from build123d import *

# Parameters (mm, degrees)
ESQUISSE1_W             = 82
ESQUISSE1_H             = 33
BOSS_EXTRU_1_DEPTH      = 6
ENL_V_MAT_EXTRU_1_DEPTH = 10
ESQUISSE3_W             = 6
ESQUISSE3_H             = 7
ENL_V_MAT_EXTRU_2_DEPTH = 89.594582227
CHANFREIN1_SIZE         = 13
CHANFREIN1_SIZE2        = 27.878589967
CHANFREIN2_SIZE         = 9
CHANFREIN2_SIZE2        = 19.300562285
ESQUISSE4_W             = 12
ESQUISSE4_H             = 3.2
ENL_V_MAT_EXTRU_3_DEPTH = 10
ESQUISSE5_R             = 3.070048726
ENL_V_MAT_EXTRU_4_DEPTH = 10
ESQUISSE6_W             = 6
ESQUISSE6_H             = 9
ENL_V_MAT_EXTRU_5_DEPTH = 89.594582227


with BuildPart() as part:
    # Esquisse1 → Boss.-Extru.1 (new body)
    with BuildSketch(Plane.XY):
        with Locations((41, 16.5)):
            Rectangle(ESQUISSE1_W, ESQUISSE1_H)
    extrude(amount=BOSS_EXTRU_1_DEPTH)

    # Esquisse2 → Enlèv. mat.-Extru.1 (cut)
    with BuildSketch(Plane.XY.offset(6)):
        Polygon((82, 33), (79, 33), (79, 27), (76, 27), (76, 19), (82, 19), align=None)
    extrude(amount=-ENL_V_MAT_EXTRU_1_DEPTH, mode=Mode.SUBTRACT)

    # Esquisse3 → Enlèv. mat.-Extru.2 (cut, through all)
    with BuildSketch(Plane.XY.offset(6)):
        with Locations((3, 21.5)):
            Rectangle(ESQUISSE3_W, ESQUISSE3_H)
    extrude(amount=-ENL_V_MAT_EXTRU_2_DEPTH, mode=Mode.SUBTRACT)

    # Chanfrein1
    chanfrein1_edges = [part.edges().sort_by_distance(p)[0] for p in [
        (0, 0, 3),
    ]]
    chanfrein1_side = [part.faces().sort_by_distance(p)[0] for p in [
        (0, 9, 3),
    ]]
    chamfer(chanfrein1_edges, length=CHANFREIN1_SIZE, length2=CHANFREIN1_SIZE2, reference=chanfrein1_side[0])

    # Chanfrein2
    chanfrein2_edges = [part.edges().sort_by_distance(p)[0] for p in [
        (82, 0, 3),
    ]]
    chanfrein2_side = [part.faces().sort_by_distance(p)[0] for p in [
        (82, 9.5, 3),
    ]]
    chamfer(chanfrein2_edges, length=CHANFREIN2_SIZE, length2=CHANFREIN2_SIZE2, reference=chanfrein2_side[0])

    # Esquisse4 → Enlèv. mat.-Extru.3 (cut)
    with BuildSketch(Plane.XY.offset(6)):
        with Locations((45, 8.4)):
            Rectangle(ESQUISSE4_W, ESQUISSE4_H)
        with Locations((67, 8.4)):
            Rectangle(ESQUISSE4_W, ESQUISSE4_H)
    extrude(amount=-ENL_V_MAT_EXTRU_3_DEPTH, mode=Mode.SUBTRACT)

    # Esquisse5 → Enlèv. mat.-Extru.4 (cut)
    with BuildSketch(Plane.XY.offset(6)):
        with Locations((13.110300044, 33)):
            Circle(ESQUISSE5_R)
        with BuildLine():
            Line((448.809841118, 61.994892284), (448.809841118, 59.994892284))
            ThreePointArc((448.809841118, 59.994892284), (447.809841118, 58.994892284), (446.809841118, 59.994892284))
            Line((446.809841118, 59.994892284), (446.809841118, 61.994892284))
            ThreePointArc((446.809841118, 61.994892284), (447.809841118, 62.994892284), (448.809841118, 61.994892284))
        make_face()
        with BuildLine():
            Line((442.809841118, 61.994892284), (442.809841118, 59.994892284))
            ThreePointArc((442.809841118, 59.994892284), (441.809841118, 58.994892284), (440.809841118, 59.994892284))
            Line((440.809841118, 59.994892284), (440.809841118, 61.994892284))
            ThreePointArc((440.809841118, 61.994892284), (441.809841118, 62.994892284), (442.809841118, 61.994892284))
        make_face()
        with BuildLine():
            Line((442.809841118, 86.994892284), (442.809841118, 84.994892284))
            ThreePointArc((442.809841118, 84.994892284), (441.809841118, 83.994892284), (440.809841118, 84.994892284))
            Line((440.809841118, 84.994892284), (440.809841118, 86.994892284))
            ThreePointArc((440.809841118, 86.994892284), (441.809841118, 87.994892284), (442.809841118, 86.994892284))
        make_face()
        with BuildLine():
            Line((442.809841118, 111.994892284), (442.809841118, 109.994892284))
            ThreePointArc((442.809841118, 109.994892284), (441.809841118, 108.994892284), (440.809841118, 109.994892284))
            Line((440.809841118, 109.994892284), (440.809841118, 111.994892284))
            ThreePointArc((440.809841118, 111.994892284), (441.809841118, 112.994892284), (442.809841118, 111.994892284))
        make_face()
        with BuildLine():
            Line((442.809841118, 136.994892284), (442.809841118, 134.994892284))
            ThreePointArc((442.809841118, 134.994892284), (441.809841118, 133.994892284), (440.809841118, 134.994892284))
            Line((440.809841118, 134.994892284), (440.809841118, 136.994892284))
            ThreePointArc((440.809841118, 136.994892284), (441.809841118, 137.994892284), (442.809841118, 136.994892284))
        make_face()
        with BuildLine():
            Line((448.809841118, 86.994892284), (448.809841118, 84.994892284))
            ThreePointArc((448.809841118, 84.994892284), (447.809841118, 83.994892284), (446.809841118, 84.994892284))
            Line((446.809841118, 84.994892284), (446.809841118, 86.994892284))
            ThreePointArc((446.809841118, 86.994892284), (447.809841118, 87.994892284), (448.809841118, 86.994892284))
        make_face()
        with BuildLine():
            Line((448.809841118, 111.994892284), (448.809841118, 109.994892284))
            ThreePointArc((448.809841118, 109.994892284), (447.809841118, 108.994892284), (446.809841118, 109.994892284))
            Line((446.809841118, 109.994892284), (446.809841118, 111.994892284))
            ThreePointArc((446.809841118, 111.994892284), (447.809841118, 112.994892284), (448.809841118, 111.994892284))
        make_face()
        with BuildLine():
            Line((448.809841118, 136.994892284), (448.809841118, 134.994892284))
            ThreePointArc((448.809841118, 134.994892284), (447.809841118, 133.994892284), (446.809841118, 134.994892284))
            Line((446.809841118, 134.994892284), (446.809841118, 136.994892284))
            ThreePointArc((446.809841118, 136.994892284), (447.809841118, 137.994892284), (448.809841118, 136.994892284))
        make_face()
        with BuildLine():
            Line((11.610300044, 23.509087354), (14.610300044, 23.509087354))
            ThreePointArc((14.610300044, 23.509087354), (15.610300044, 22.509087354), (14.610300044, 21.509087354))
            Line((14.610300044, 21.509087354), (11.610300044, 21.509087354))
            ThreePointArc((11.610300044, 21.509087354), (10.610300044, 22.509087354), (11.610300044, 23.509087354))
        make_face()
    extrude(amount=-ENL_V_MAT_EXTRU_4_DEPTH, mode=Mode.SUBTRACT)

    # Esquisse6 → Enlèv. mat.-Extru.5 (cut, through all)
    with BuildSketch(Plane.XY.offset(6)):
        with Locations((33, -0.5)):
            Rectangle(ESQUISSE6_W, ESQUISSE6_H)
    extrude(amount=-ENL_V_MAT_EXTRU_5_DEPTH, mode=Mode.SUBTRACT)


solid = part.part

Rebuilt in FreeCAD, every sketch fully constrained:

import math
import FreeCAD as App
import Part
import Sketcher
Q = App.Units.Quantity


def edges_at(feature, points):
    """Names of the edges that pass closest to the given points."""
    edges = feature.Shape.Edges
    near = lambda p: min(range(len(edges)), key=lambda i: edges[i].distToShape(Part.Vertex(*p))[0])
    return sorted({f"Edge{near(p) + 1}" for p in points})


def add_polygon(sketch, points):
    """Adds a closed chain of lines whose ends are joined by coincident constraints."""
    first, n = sketch.GeometryCount, len(points)
    for a, b in zip(points, points[1:] + points[:1]):
        sketch.addGeometry(Part.LineSegment(App.Vector(*a, 0), App.Vector(*b, 0)), False)
    for i in range(n):
        sketch.addConstraint(Sketcher.Constraint("Coincident", first + i, 2, first + (i + 1) % n, 1))

doc = App.newDocument("Part")
params = doc.addObject("Spreadsheet::Sheet", "Params")
for row, (alias, value) in enumerate([
    ("sketch1_width", "82 mm"),
    ("sketch1_height", "33 mm"),
    ("pad1_length", "6 mm"),
    ("sketch2_width", "3 mm"),
    ("sketch2_height", "8 mm"),
    ("pocket1_length", "10 mm"),
    ("sketch3_width", "6 mm"),
    ("sketch3_height", "7 mm"),
    ("chamfer_size", "13 mm"),
    ("chamfer_size2", "27.87859 mm"),
    ("chamfer2_size", "9 mm"),
    ("chamfer2_size2", "19.300562 mm"),
    ("sketch4_width", "12 mm"),
    ("sketch4_height", "3.2 mm"),
    ("pocket3_length", "10 mm"),
    ("sketch5_radius", "1 mm"),
    ("sketch5_width", "3 mm"),
    ("sketch5_height", "2 mm"),
    ("pocket4_length", "10 mm"),
    ("sketch6_width", "6 mm"),
    ("sketch6_height", "9 mm"),
], start=1):
    params.set(f"A{row}", alias)
    params.set(f"B{row}", "=" + value)
    params.setAlias(f"B{row}", alias)

body = doc.addObject("PartDesign::Body", "Body")

# Sketch on XY plane
sketch1 = doc.addObject("Sketcher::SketchObject", "Sketch")
body.addObject(sketch1)
sketch1.AttachmentSupport = (doc.XY_Plane, [""])
sketch1.MapMode = "FlatFace"
add_polygon(sketch1, [(0, 33), (0, 0), (82, 0), (82, 33)])  # lines 0-3
sketch1.addConstraint(Sketcher.Constraint("Vertical", 0))
sketch1.addConstraint(Sketcher.Constraint("Horizontal", 1))
sketch1.addConstraint(Sketcher.Constraint("Vertical", 2))
sketch1.addConstraint(Sketcher.Constraint("Horizontal", 3))
sketch1.addConstraint(Sketcher.Constraint("Coincident", 0, 2, -1, 1))
sketch1.addConstraint(Sketcher.Constraint("DistanceX", 1, 1, 1, 2, Q("82 mm")))
sketch1.addConstraint(Sketcher.Constraint("DistanceY", 0, 2, 0, 1, Q("33 mm")))
sketch1.setExpression("Constraints[9]", "Params.sketch1_width")
sketch1.setExpression("Constraints[10]", "Params.sketch1_height")
pad1 = doc.addObject("PartDesign::Pad", "Pad")
body.addObject(pad1)
pad1.Profile = sketch1
pad1.setExpression("Length", "Params.pad1_length")

# Sketch on XY plane
sketch2 = doc.addObject("Sketcher::SketchObject", "Sketch001")
body.addObject(sketch2)
sketch2.AttachmentSupport = (doc.XY_Plane, [""])
sketch2.MapMode = "FlatFace"
sketch2.AttachmentOffset = App.Placement(App.Vector(0, 0, 6), App.Rotation())
add_polygon(sketch2, [(82, 33), (79, 33), (79, 27), (76, 27), (76, 19), (82, 19)])  # lines 0-5
sketch2.addConstraint(Sketcher.Constraint("Horizontal", 0))
sketch2.addConstraint(Sketcher.Constraint("Vertical", 1))
sketch2.addConstraint(Sketcher.Constraint("Horizontal", 2))
sketch2.addConstraint(Sketcher.Constraint("Vertical", 3))
sketch2.addConstraint(Sketcher.Constraint("Horizontal", 4))
sketch2.addConstraint(Sketcher.Constraint("Vertical", 5))
sketch2.addConstraint(Sketcher.Constraint("Equal", 0, 2))
sketch2.addConstraint(Sketcher.Constraint("Equal", 4, 1))
sketch2.addConstraint(Sketcher.Constraint("DistanceX", 0, 2, 0, 1, Q("3 mm")))
sketch2.addConstraint(Sketcher.Constraint("DistanceY", 3, 2, 3, 1, Q("8 mm")))
sketch2.addConstraint(Sketcher.Constraint("DistanceX", -1, 1, 0, 2, Q("79 mm")))
sketch2.addConstraint(Sketcher.Constraint("DistanceY", -1, 1, 0, 2, Q("33 mm")))
sketch2.setExpression("Constraints[14]", "Params.sketch2_width")
sketch2.setExpression("Constraints[15]", "Params.sketch2_height")
pocket1 = doc.addObject("PartDesign::Pocket", "Pocket")
body.addObject(pocket1)
pocket1.Profile = sketch2
pocket1.setExpression("Length", "Params.pocket1_length")

# Sketch on XY plane
sketch3 = doc.addObject("Sketcher::SketchObject", "Sketch002")
body.addObject(sketch3)
sketch3.AttachmentSupport = (doc.XY_Plane, [""])
sketch3.MapMode = "FlatFace"
sketch3.AttachmentOffset = App.Placement(App.Vector(0, 0, 6), App.Rotation())
add_polygon(sketch3, [(0, 25), (0, 18), (6, 18), (6, 25)])  # lines 0-3
sketch3.addConstraint(Sketcher.Constraint("Vertical", 0))
sketch3.addConstraint(Sketcher.Constraint("Horizontal", 1))
sketch3.addConstraint(Sketcher.Constraint("Vertical", 2))
sketch3.addConstraint(Sketcher.Constraint("Horizontal", 3))
sketch3.addConstraint(Sketcher.Constraint("PointOnObject", 0, 2, -2))
sketch3.addConstraint(Sketcher.Constraint("DistanceX", 1, 1, 1, 2, Q("6 mm")))
sketch3.addConstraint(Sketcher.Constraint("DistanceY", 0, 2, 0, 1, Q("7 mm")))
sketch3.addConstraint(Sketcher.Constraint("DistanceY", -1, 1, 0, 2, Q("18 mm")))
sketch3.setExpression("Constraints[9]", "Params.sketch3_width")
sketch3.setExpression("Constraints[10]", "Params.sketch3_height")
pocket2 = doc.addObject("PartDesign::Pocket", "Pocket001")
body.addObject(pocket2)
pocket2.Profile = sketch3
pocket2.Type = "ThroughAll"
doc.recompute()

chamfer = doc.addObject("PartDesign::Chamfer", "Chamfer")
body.addObject(chamfer)
chamfer.Base = (pocket2, edges_at(pocket2, [(0, 0, 3)]))
chamfer.ChamferType = "Two distances"
chamfer.setExpression("Size", "Params.chamfer_size")
chamfer.setExpression("Size2", "Params.chamfer_size2")
chamfer.FlipDirection = True
doc.recompute()

chamfer2 = doc.addObject("PartDesign::Chamfer", "Chamfer001")
body.addObject(chamfer2)
chamfer2.Base = (chamfer, edges_at(chamfer, [(82, 0, 3)]))
chamfer2.ChamferType = "Two distances"
chamfer2.setExpression("Size", "Params.chamfer2_size")
chamfer2.setExpression("Size2", "Params.chamfer2_size2")
chamfer2.FlipDirection = True

# Sketch on XY plane
sketch4 = doc.addObject("Sketcher::SketchObject", "Sketch003")
body.addObject(sketch4)
sketch4.AttachmentSupport = (doc.XY_Plane, [""])
sketch4.MapMode = "FlatFace"
sketch4.AttachmentOffset = App.Placement(App.Vector(0, 0, 6), App.Rotation())
add_polygon(sketch4, [(39, 10), (39, 6.8), (51, 6.8), (51, 10)])  # lines 0-3
add_polygon(sketch4, [(61, 10), (61, 6.8), (73, 6.8), (73, 10)])  # lines 4-7
sketch4.addConstraint(Sketcher.Constraint("Vertical", 0))
sketch4.addConstraint(Sketcher.Constraint("Horizontal", 1))
sketch4.addConstraint(Sketcher.Constraint("Vertical", 2))
sketch4.addConstraint(Sketcher.Constraint("Horizontal", 3))
sketch4.addConstraint(Sketcher.Constraint("Vertical", 4))
sketch4.addConstraint(Sketcher.Constraint("Horizontal", 5))
sketch4.addConstraint(Sketcher.Constraint("Vertical", 6))
sketch4.addConstraint(Sketcher.Constraint("Horizontal", 7))
sketch4.addConstraint(Sketcher.Constraint("Horizontal", 1, 2, 4, 2))
sketch4.addConstraint(Sketcher.Constraint("Horizontal", 3, 2, 6, 2))
sketch4.addConstraint(Sketcher.Constraint("Equal", 3, 5))
sketch4.addConstraint(Sketcher.Constraint("DistanceX", 1, 1, 1, 2, Q("12 mm")))
sketch4.addConstraint(Sketcher.Constraint("DistanceY", 0, 2, 0, 1, Q("3.2 mm")))
sketch4.addConstraint(Sketcher.Constraint("DistanceX", -1, 1, 0, 2, Q("39 mm")))
sketch4.addConstraint(Sketcher.Constraint("DistanceY", -1, 1, 2, 2, Q("10 mm")))
sketch4.addConstraint(Sketcher.Constraint("DistanceX", -1, 1, 4, 2, Q("61 mm")))
sketch4.setExpression("Constraints[19]", "Params.sketch4_width")
sketch4.setExpression("Constraints[20]", "Params.sketch4_height")
pocket3 = doc.addObject("PartDesign::Pocket", "Pocket002")
body.addObject(pocket3)
pocket3.Profile = sketch4
pocket3.setExpression("Length", "Params.pocket3_length")

# Sketch on XY plane
sketch5 = doc.addObject("Sketcher::SketchObject", "Sketch004")
body.addObject(sketch5)
sketch5.AttachmentSupport = (doc.XY_Plane, [""])
sketch5.MapMode = "FlatFace"
sketch5.AttachmentOffset = App.Placement(App.Vector(0, 0, 6), App.Rotation())
sketch5.addGeometry(Part.Circle(App.Vector(13.1103, 33, 0), App.Vector(0, 0, 1), 3.070049), False)
sketch5.addGeometry(Part.LineSegment(App.Vector(448.809841, 59.994892, 0), App.Vector(448.809841, 61.994892, 0)), False)
sketch5.addGeometry(Part.ArcOfCircle(Part.Circle(App.Vector(447.809841, 61.994892, 0), App.Vector(0, 0, 1), 1), math.radians(0), math.radians(180)), False)
sketch5.addGeometry(Part.LineSegment(App.Vector(446.809841, 61.994892, 0), App.Vector(446.809841, 59.994892, 0)), False)
sketch5.addGeometry(Part.ArcOfCircle(Part.Circle(App.Vector(447.809841, 59.994892, 0), App.Vector(0, 0, 1), 1), math.radians(180), math.radians(360)), False)
sketch5.addGeometry(Part.LineSegment(App.Vector(442.809841, 59.994892, 0), App.Vector(442.809841, 61.994892, 0)), False)
sketch5.addGeometry(Part.ArcOfCircle(Part.Circle(App.Vector(441.809841, 61.994892, 0), App.Vector(0, 0, 1), 1), math.radians(0), math.radians(180)), False)
sketch5.addGeometry(Part.LineSegment(App.Vector(440.809841, 61.994892, 0), App.Vector(440.809841, 59.994892, 0)), False)
sketch5.addGeometry(Part.ArcOfCircle(Part.Circle(App.Vector(441.809841, 59.994892, 0), App.Vector(0, 0, 1), 1), math.radians(180), math.radians(360)), False)
sketch5.addGeometry(Part.LineSegment(App.Vector(442.809841, 84.994892, 0), App.Vector(442.809841, 86.994892, 0)), False)
sketch5.addGeometry(Part.ArcOfCircle(Part.Circle(App.Vector(441.809841, 86.994892, 0), App.Vector(0, 0, 1), 1), math.radians(0), math.radians(180)), False)
sketch5.addGeometry(Part.LineSegment(App.Vector(440.809841, 86.994892, 0), App.Vector(440.809841, 84.994892, 0)), False)
sketch5.addGeometry(Part.ArcOfCircle(Part.Circle(App.Vector(441.809841, 84.994892, 0), App.Vector(0, 0, 1), 1), math.radians(180), math.radians(360)), False)
sketch5.addGeometry(Part.LineSegment(App.Vector(442.809841, 109.994892, 0), App.Vector(442.809841, 111.994892, 0)), False)
sketch5.addGeometry(Part.ArcOfCircle(Part.Circle(App.Vector(441.809841, 111.994892, 0), App.Vector(0, 0, 1), 1), math.radians(0), math.radians(180)), False)
sketch5.addGeometry(Part.LineSegment(App.Vector(440.809841, 111.994892, 0), App.Vector(440.809841, 109.994892, 0)), False)
sketch5.addGeometry(Part.ArcOfCircle(Part.Circle(App.Vector(441.809841, 109.994892, 0), App.Vector(0, 0, 1), 1), math.radians(180), math.radians(360)), False)
sketch5.addGeometry(Part.LineSegment(App.Vector(442.809841, 134.994892, 0), App.Vector(442.809841, 136.994892, 0)), False)
sketch5.addGeometry(Part.ArcOfCircle(Part.Circle(App.Vector(441.809841, 136.994892, 0), App.Vector(0, 0, 1), 1), math.radians(0), math.radians(180)), False)
sketch5.addGeometry(Part.LineSegment(App.Vector(440.809841, 136.994892, 0), App.Vector(440.809841, 134.994892, 0)), False)
sketch5.addGeometry(Part.ArcOfCircle(Part.Circle(App.Vector(441.809841, 134.994892, 0), App.Vector(0, 0, 1), 1), math.radians(180), math.radians(360)), False)
sketch5.addGeometry(Part.LineSegment(App.Vector(448.809841, 84.994892, 0), App.Vector(448.809841, 86.994892, 0)), False)
sketch5.addGeometry(Part.ArcOfCircle(Part.Circle(App.Vector(447.809841, 86.994892, 0), App.Vector(0, 0, 1), 1), math.radians(0), math.radians(180)), False)
sketch5.addGeometry(Part.LineSegment(App.Vector(446.809841, 86.994892, 0), App.Vector(446.809841, 84.994892, 0)), False)
sketch5.addGeometry(Part.ArcOfCircle(Part.Circle(App.Vector(447.809841, 84.994892, 0), App.Vector(0, 0, 1), 1), math.radians(180), math.radians(360)), False)
sketch5.addGeometry(Part.LineSegment(App.Vector(448.809841, 109.994892, 0), App.Vector(448.809841, 111.994892, 0)), False)
sketch5.addGeometry(Part.ArcOfCircle(Part.Circle(App.Vector(447.809841, 111.994892, 0), App.Vector(0, 0, 1), 1), math.radians(0), math.radians(180)), False)
sketch5.addGeometry(Part.LineSegment(App.Vector(446.809841, 111.994892, 0), App.Vector(446.809841, 109.994892, 0)), False)
sketch5.addGeometry(Part.ArcOfCircle(Part.Circle(App.Vector(447.809841, 109.994892, 0), App.Vector(0, 0, 1), 1), math.radians(180), math.radians(360)), False)
sketch5.addGeometry(Part.LineSegment(App.Vector(448.809841, 134.994892, 0), App.Vector(448.809841, 136.994892, 0)), False)
sketch5.addGeometry(Part.ArcOfCircle(Part.Circle(App.Vector(447.809841, 136.994892, 0), App.Vector(0, 0, 1), 1), math.radians(0), math.radians(180)), False)
sketch5.addGeometry(Part.LineSegment(App.Vector(446.809841, 136.994892, 0), App.Vector(446.809841, 134.994892, 0)), False)
sketch5.addGeometry(Part.ArcOfCircle(Part.Circle(App.Vector(447.809841, 134.994892, 0), App.Vector(0, 0, 1), 1), math.radians(180), math.radians(360)), False)
sketch5.addGeometry(Part.LineSegment(App.Vector(14.6103, 23.509087, 0), App.Vector(11.6103, 23.509087, 0)), False)
sketch5.addGeometry(Part.ArcOfCircle(Part.Circle(App.Vector(11.6103, 22.509087, 0), App.Vector(0, 0, 1), 1), math.radians(90), math.radians(270)), False)
sketch5.addGeometry(Part.LineSegment(App.Vector(11.6103, 21.509087, 0), App.Vector(14.6103, 21.509087, 0)), False)
sketch5.addGeometry(Part.ArcOfCircle(Part.Circle(App.Vector(14.6103, 22.509087, 0), App.Vector(0, 0, 1), 1), math.radians(-90), math.radians(90)), False)
sketch5.addConstraint(Sketcher.Constraint("Tangent", 1, 2, 2, 1))
sketch5.addConstraint(Sketcher.Constraint("Tangent", 2, 2, 3, 1))
sketch5.addConstraint(Sketcher.Constraint("Tangent", 3, 2, 4, 1))
sketch5.addConstraint(Sketcher.Constraint("Tangent", 4, 2, 1, 1))
sketch5.addConstraint(Sketcher.Constraint("Tangent", 5, 2, 6, 1))
sketch5.addConstraint(Sketcher.Constraint("Tangent", 6, 2, 7, 1))
sketch5.addConstraint(Sketcher.Constraint("Tangent", 7, 2, 8, 1))
sketch5.addConstraint(Sketcher.Constraint("Tangent", 8, 2, 5, 1))
sketch5.addConstraint(Sketcher.Constraint("Tangent", 9, 2, 10, 1))
sketch5.addConstraint(Sketcher.Constraint("Tangent", 10, 2, 11, 1))
sketch5.addConstraint(Sketcher.Constraint("Tangent", 11, 2, 12, 1))
sketch5.addConstraint(Sketcher.Constraint("Tangent", 12, 2, 9, 1))
sketch5.addConstraint(Sketcher.Constraint("Tangent", 13, 2, 14, 1))
sketch5.addConstraint(Sketcher.Constraint("Tangent", 14, 2, 15, 1))
sketch5.addConstraint(Sketcher.Constraint("Tangent", 15, 2, 16, 1))
sketch5.addConstraint(Sketcher.Constraint("Tangent", 16, 2, 13, 1))
sketch5.addConstraint(Sketcher.Constraint("Tangent", 17, 2, 18, 1))
sketch5.addConstraint(Sketcher.Constraint("Tangent", 18, 2, 19, 1))
sketch5.addConstraint(Sketcher.Constraint("Tangent", 19, 2, 20, 1))
sketch5.addConstraint(Sketcher.Constraint("Tangent", 20, 2, 17, 1))
sketch5.addConstraint(Sketcher.Constraint("Tangent", 21, 2, 22, 1))
sketch5.addConstraint(Sketcher.Constraint("Tangent", 22, 2, 23, 1))
sketch5.addConstraint(Sketcher.Constraint("Tangent", 23, 2, 24, 1))
sketch5.addConstraint(Sketcher.Constraint("Tangent", 24, 2, 21, 1))
sketch5.addConstraint(Sketcher.Constraint("Tangent", 25, 2, 26, 1))
sketch5.addConstraint(Sketcher.Constraint("Tangent", 26, 2, 27, 1))
sketch5.addConstraint(Sketcher.Constraint("Tangent", 27, 2, 28, 1))
sketch5.addConstraint(Sketcher.Constraint("Tangent", 28, 2, 25, 1))
sketch5.addConstraint(Sketcher.Constraint("Tangent", 29, 2, 30, 1))
sketch5.addConstraint(Sketcher.Constraint("Tangent", 30, 2, 31, 1))
sketch5.addConstraint(Sketcher.Constraint("Tangent", 31, 2, 32, 1))
sketch5.addConstraint(Sketcher.Constraint("Tangent", 32, 2, 29, 1))
sketch5.addConstraint(Sketcher.Constraint("Tangent", 33, 2, 34, 1))
sketch5.addConstraint(Sketcher.Constraint("Tangent", 34, 2, 35, 1))
sketch5.addConstraint(Sketcher.Constraint("Tangent", 35, 2, 36, 1))
sketch5.addConstraint(Sketcher.Constraint("Tangent", 36, 2, 33, 1))
sketch5.addConstraint(Sketcher.Constraint("Vertical", 1))
sketch5.addConstraint(Sketcher.Constraint("Vertical", 3))
sketch5.addConstraint(Sketcher.Constraint("Vertical", 5))
sketch5.addConstraint(Sketcher.Constraint("Vertical", 7))
sketch5.addConstraint(Sketcher.Constraint("Vertical", 9))
sketch5.addConstraint(Sketcher.Constraint("Vertical", 11))
sketch5.addConstraint(Sketcher.Constraint("Vertical", 13))
sketch5.addConstraint(Sketcher.Constraint("Vertical", 15))
sketch5.addConstraint(Sketcher.Constraint("Vertical", 17))
sketch5.addConstraint(Sketcher.Constraint("Vertical", 19))
sketch5.addConstraint(Sketcher.Constraint("Vertical", 21))
sketch5.addConstraint(Sketcher.Constraint("Vertical", 23))
sketch5.addConstraint(Sketcher.Constraint("Vertical", 25))
sketch5.addConstraint(Sketcher.Constraint("Vertical", 27))
sketch5.addConstraint(Sketcher.Constraint("Vertical", 29))
sketch5.addConstraint(Sketcher.Constraint("Vertical", 31))
sketch5.addConstraint(Sketcher.Constraint("Horizontal", 33))
sketch5.addConstraint(Sketcher.Constraint("Horizontal", 35))
sketch5.addConstraint(Sketcher.Constraint("Equal", 4, 6))
sketch5.addConstraint(Sketcher.Constraint("Equal", 8, 10))
sketch5.addConstraint(Sketcher.Constraint("Equal", 12, 14))
sketch5.addConstraint(Sketcher.Constraint("Equal", 16, 18))
sketch5.addConstraint(Sketcher.Constraint("Equal", 20, 22))
sketch5.addConstraint(Sketcher.Constraint("Equal", 24, 26))
sketch5.addConstraint(Sketcher.Constraint("Equal", 28, 30))
sketch5.addConstraint(Sketcher.Constraint("Equal", 32, 34))
sketch5.addConstraint(Sketcher.Constraint("Horizontal", 2, 3, 6, 3))
sketch5.addConstraint(Sketcher.Constraint("Horizontal", 4, 3, 8, 3))
sketch5.addConstraint(Sketcher.Constraint("Horizontal", 10, 3, 22, 3))
sketch5.addConstraint(Sketcher.Constraint("Horizontal", 12, 3, 24, 3))
sketch5.addConstraint(Sketcher.Constraint("Horizontal", 14, 3, 26, 3))
sketch5.addConstraint(Sketcher.Constraint("Horizontal", 16, 3, 28, 3))
sketch5.addConstraint(Sketcher.Constraint("Horizontal", 18, 3, 30, 3))
sketch5.addConstraint(Sketcher.Constraint("Horizontal", 20, 3, 32, 3))
sketch5.addConstraint(Sketcher.Constraint("Vertical", 8, 3, 10, 3))
sketch5.addConstraint(Sketcher.Constraint("Vertical", 12, 3, 14, 3))
sketch5.addConstraint(Sketcher.Constraint("Vertical", 16, 3, 18, 3))
sketch5.addConstraint(Sketcher.Constraint("Vertical", 4, 3, 22, 3))
sketch5.addConstraint(Sketcher.Constraint("Vertical", 24, 3, 26, 3))
sketch5.addConstraint(Sketcher.Constraint("Vertical", 28, 3, 30, 3))
sketch5.addConstraint(Sketcher.Constraint("Equal", 7, 9))
sketch5.addConstraint(Sketcher.Constraint("Equal", 11, 13))
sketch5.addConstraint(Sketcher.Constraint("Equal", 15, 17))
sketch5.addConstraint(Sketcher.Constraint("Radius", 2, Q("1 mm")))
sketch5.addConstraint(Sketcher.Constraint("DistanceX", 33, 2, 33, 1, Q("3 mm")))
sketch5.addConstraint(Sketcher.Constraint("DistanceY", 1, 1, 1, 2, Q("2 mm")))
sketch5.addConstraint(Sketcher.Constraint("DistanceY", -1, 1, 0, 3, Q("33 mm")))
sketch5.addConstraint(Sketcher.Constraint("DistanceX", 6, 3, 2, 3, Q("6 mm")))
sketch5.addConstraint(Sketcher.Constraint("DistanceY", 6, 3, 10, 3, Q("25 mm")))
sketch5.addConstraint(Sketcher.Constraint("DistanceY", 10, 3, 14, 3, Q("25 mm")))
sketch5.addConstraint(Sketcher.Constraint("DistanceY", 14, 3, 18, 3, Q("25 mm")))
sketch5.addConstraint(Sketcher.Constraint("DistanceX", 34, 3, 0, 3, Q("1.5 mm")))
sketch5.addConstraint(Sketcher.Constraint("Diameter", 0, Q("6.140097 mm")))
sketch5.addConstraint(Sketcher.Constraint("DistanceX", -1, 1, 0, 3, Q("13.1103 mm")))
sketch5.addConstraint(Sketcher.Constraint("DistanceX", -1, 1, 2, 3, Q("447.809841 mm")))
sketch5.addConstraint(Sketcher.Constraint("DistanceY", -1, 1, 2, 3, Q("61.994892 mm")))
sketch5.addConstraint(Sketcher.Constraint("DistanceY", -1, 1, 34, 3, Q("22.509087 mm")))
sketch5.setExpression("Constraints[79]", "Params.sketch5_radius")
sketch5.setExpression("Constraints[80]", "Params.sketch5_width")
sketch5.setExpression("Constraints[81]", "Params.sketch5_height")
pocket4 = doc.addObject("PartDesign::Pocket", "Pocket003")
body.addObject(pocket4)
pocket4.Profile = sketch5
pocket4.setExpression("Length", "Params.pocket4_length")

# Sketch on XY plane
sketch6 = doc.addObject("Sketcher::SketchObject", "Sketch005")
body.addObject(sketch6)
sketch6.AttachmentSupport = (doc.XY_Plane, [""])
sketch6.MapMode = "FlatFace"
sketch6.AttachmentOffset = App.Placement(App.Vector(0, 0, 6), App.Rotation())
add_polygon(sketch6, [(30, 4), (30, -5), (36, -5), (36, 4)])  # lines 0-3
sketch6.addConstraint(Sketcher.Constraint("Vertical", 0))
sketch6.addConstraint(Sketcher.Constraint("Horizontal", 1))
sketch6.addConstraint(Sketcher.Constraint("Vertical", 2))
sketch6.addConstraint(Sketcher.Constraint("Horizontal", 3))
sketch6.addConstraint(Sketcher.Constraint("DistanceX", 1, 1, 1, 2, Q("6 mm")))
sketch6.addConstraint(Sketcher.Constraint("DistanceY", 0, 2, 0, 1, Q("9 mm")))
sketch6.addConstraint(Sketcher.Constraint("DistanceX", -1, 1, 0, 2, Q("30 mm")))
sketch6.addConstraint(Sketcher.Constraint("DistanceY", 0, 2, -1, 1, Q("5 mm")))
sketch6.setExpression("Constraints[8]", "Params.sketch6_width")
sketch6.setExpression("Constraints[9]", "Params.sketch6_height")
pocket5 = doc.addObject("PartDesign::Pocket", "Pocket004")
body.addObject(pocket5)
pocket5.Profile = sketch6
pocket5.Type = "ThroughAll"

doc.recompute()
